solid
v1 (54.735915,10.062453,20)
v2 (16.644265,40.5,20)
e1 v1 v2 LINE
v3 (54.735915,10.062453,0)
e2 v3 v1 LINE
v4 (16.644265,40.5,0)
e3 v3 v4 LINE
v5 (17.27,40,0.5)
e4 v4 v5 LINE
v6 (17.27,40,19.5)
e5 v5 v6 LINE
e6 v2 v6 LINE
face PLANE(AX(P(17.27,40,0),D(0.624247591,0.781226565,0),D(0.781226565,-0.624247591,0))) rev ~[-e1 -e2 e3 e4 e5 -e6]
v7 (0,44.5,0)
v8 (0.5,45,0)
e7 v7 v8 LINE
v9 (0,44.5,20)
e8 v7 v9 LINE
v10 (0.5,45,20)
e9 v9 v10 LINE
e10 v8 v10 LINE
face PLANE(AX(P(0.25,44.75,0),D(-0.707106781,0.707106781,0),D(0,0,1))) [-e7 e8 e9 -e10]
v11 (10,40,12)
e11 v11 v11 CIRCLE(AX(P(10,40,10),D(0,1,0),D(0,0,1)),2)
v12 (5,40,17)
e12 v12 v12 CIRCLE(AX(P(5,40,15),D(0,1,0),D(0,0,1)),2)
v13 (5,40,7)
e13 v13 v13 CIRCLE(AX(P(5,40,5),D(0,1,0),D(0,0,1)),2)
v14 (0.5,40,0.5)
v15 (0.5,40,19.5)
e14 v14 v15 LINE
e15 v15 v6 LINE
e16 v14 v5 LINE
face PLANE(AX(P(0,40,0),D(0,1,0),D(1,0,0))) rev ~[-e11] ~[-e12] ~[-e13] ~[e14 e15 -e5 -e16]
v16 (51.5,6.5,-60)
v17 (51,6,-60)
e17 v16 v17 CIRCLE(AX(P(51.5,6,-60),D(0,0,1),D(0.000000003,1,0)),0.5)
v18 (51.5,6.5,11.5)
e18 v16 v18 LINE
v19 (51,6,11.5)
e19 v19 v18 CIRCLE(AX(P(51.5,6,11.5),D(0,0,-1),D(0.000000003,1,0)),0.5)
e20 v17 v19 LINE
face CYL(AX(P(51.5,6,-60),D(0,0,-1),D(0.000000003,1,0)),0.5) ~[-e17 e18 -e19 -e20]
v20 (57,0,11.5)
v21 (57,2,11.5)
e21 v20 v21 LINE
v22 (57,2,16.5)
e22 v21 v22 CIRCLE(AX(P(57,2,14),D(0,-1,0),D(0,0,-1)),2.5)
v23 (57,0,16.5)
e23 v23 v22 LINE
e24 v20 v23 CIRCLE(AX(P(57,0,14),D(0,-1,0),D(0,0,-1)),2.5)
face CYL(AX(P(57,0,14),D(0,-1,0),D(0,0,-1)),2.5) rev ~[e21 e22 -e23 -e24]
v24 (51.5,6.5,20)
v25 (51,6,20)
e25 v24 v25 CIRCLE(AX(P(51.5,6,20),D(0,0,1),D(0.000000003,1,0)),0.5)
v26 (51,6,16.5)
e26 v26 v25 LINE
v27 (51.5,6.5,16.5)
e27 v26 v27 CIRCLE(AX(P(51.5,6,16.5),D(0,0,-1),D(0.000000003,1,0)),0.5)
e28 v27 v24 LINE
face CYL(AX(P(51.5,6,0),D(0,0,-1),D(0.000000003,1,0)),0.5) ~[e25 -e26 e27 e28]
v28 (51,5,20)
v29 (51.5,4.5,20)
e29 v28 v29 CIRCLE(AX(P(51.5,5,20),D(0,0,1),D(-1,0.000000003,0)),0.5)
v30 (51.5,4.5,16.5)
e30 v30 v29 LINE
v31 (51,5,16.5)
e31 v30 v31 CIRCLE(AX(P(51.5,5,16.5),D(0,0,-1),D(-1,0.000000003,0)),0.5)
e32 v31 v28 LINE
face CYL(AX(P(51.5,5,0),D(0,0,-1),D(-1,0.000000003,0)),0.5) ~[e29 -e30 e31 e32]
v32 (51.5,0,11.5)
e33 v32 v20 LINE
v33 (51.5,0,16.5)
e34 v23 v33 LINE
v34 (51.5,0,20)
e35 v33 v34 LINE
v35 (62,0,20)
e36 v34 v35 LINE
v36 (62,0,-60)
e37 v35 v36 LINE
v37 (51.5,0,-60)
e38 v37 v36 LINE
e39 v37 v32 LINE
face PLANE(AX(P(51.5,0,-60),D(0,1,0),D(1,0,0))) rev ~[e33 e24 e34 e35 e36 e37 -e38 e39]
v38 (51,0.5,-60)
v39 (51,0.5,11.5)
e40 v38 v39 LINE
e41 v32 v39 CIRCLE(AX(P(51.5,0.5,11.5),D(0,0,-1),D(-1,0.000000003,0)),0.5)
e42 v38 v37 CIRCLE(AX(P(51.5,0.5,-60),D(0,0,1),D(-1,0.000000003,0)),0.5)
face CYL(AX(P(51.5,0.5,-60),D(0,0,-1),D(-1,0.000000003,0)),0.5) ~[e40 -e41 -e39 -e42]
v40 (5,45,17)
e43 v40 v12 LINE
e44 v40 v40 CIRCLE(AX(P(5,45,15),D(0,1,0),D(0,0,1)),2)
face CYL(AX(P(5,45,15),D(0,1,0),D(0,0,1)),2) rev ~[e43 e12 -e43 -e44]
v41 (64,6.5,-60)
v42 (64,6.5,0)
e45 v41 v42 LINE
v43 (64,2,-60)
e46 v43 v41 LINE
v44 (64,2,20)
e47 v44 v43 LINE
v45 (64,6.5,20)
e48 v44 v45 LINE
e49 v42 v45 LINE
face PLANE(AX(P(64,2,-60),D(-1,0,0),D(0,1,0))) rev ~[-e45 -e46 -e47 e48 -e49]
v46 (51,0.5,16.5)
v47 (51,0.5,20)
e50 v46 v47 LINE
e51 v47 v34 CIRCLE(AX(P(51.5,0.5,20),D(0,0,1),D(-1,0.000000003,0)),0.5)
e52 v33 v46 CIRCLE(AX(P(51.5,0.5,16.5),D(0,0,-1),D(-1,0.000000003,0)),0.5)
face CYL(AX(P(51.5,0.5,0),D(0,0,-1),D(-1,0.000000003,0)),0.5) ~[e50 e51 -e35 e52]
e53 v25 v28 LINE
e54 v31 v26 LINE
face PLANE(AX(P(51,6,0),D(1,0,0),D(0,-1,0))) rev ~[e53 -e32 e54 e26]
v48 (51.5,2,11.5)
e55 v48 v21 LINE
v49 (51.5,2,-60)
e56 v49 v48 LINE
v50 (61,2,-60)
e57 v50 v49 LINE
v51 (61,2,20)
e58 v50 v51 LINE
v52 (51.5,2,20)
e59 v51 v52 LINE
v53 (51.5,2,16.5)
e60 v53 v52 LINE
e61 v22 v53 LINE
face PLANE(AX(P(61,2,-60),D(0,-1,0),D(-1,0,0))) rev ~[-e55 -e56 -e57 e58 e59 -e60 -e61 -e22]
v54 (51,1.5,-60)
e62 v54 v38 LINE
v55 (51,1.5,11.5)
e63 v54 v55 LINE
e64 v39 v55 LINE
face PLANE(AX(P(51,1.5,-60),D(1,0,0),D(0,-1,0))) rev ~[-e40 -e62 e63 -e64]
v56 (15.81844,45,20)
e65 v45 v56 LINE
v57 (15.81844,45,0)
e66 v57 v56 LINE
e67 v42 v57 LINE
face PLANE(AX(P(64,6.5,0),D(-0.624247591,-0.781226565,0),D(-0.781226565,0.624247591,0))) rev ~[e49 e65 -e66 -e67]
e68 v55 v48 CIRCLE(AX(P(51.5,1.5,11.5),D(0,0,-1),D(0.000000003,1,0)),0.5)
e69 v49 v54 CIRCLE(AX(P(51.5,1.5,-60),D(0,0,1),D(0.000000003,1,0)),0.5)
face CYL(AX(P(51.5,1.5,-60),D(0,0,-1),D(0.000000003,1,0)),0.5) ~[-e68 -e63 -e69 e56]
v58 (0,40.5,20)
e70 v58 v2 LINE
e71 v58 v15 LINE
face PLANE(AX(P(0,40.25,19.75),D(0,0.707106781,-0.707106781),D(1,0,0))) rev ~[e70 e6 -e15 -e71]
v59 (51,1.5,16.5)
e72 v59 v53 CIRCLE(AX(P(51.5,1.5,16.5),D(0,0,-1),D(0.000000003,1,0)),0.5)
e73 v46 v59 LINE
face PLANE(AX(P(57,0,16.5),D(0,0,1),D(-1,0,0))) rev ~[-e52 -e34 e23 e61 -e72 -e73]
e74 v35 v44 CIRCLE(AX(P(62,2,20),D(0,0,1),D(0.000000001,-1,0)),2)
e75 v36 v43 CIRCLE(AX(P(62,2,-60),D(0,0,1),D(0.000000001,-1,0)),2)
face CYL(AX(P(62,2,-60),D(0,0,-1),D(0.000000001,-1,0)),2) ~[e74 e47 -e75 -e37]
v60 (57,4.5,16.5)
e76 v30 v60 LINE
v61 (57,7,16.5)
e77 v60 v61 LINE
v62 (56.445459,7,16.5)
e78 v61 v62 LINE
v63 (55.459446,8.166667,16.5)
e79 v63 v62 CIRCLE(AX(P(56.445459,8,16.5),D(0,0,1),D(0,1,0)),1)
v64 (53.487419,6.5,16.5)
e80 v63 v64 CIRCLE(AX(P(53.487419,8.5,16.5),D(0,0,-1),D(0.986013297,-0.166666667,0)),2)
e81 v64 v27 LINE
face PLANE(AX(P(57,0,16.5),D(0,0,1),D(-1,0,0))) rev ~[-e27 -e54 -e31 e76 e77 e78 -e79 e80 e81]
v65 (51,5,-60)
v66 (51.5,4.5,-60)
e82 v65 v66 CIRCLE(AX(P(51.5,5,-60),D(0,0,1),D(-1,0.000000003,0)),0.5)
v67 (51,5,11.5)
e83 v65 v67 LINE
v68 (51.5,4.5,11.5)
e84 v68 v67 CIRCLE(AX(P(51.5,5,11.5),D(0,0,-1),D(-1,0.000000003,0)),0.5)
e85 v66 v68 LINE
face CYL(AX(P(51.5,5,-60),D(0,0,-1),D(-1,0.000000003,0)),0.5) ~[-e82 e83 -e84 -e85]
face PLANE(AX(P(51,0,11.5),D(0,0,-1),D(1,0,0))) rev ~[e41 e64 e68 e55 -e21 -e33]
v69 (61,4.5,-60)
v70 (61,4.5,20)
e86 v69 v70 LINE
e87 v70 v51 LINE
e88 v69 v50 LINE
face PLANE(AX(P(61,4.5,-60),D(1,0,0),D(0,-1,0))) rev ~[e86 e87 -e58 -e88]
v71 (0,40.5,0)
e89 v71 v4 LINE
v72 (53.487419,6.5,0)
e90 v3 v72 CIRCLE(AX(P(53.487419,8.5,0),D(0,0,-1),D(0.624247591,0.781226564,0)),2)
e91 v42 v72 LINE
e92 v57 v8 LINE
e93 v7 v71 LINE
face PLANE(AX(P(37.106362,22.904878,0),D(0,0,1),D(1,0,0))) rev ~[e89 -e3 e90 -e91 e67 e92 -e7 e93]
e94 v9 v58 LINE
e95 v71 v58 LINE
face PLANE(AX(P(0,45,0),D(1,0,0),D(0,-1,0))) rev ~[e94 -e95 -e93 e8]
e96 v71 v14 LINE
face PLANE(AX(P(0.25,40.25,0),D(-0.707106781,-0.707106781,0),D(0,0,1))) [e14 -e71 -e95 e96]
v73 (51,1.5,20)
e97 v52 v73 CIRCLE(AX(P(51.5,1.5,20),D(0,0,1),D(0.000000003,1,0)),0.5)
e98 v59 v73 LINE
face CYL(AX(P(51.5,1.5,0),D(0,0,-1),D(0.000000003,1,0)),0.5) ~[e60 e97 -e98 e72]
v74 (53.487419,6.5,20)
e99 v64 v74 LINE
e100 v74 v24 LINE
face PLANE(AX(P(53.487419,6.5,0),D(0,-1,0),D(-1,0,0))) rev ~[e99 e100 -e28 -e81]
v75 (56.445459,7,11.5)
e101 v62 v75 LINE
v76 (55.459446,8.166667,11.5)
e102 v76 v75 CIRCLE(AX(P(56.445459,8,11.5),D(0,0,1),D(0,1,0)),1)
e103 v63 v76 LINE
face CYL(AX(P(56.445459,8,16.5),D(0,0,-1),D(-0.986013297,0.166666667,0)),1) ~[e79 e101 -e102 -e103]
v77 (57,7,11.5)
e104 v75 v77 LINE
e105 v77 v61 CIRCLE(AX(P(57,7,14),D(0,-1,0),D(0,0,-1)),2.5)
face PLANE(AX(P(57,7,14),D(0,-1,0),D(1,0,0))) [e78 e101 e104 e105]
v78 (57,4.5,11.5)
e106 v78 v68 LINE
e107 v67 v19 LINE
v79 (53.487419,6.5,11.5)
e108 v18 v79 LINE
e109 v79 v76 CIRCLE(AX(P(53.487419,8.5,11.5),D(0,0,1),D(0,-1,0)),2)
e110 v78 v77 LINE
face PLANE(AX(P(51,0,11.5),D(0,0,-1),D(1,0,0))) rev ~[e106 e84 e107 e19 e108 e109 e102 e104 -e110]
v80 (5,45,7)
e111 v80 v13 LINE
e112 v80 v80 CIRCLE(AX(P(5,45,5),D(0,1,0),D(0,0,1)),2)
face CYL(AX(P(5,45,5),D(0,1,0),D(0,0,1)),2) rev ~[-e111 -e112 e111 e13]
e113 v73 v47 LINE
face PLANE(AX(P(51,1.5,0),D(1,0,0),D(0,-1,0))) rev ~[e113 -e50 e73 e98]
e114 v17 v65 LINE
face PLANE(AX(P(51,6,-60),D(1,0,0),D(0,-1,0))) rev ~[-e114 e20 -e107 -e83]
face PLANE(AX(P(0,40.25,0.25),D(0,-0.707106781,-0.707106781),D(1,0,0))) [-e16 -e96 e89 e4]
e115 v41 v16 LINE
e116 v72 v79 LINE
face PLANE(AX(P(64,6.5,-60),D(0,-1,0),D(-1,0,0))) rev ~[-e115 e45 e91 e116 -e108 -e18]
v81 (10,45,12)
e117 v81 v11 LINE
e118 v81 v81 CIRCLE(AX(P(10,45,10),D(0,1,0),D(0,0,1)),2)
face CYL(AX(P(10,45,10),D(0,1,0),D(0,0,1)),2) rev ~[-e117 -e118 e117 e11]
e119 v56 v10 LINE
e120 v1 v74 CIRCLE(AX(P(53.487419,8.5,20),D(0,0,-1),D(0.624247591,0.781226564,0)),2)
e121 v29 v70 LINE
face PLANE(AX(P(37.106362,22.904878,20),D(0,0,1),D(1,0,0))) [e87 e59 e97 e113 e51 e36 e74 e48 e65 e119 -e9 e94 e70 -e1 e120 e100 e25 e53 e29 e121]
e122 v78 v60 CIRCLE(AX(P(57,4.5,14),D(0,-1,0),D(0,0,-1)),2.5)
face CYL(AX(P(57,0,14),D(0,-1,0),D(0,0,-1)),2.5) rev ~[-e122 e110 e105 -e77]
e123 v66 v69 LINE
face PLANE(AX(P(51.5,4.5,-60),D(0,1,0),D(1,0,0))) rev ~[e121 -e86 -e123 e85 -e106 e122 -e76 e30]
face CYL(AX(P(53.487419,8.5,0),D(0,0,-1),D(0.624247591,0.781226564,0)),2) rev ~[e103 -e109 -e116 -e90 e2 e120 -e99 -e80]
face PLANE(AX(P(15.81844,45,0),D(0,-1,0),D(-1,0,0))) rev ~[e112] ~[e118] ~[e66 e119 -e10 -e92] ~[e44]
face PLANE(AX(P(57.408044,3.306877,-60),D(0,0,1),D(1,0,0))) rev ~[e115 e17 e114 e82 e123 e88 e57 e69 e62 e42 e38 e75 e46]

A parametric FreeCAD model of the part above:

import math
import FreeCAD as App
import Part
import Sketcher
from FreeCAD import Vector


def edges_at(feature, points):
    """Names of the edges that pass closest to the given points."""
    edges = feature.Shape.Edges
    near = lambda p: min(range(len(edges)), key=lambda i: edges[i].distToShape(Part.Vertex(*p))[0])
    return sorted({f"Edge{near(p) + 1}" for p in points})

doc = App.newDocument("Part")
body = doc.addObject("PartDesign::Body", "Body")

sketch1 = body.newObject("Sketcher::SketchObject", "Sketch")
sketch1.AttachmentSupport = (doc.getObject("XY_Plane"), [""])
sketch1.MapMode = "FlatFace"
sketch1.addGeometry([
    Part.LineSegment(Vector(51.5, 0, 0), Vector(62, 0, 0)),
    Part.ArcOfCircle(Part.Circle(Vector(62, 2, 0), Vector(0, 0, 1), 2), math.radians(-90), math.radians(0)),
    Part.LineSegment(Vector(64, 2, 0), Vector(64, 6.5, 0)),
    Part.LineSegment(Vector(64, 6.5, 0), Vector(15.82, 45, 0)),
    Part.LineSegment(Vector(15.82, 45, 0), Vector(0, 45, 0)),
    Part.LineSegment(Vector(0, 45, 0), Vector(0, 40, 0)),
    Part.LineSegment(Vector(0, 40, 0), Vector(17.27, 40, 0)),
    Part.LineSegment(Vector(17.27, 40, 0), Vector(54.74, 10.06, 0)),
    Part.ArcOfCircle(Part.Circle(Vector(53.49, 8.5, 0), Vector(0, 0, 1), 2), math.radians(-90), math.radians(51)),
    Part.LineSegment(Vector(53.49, 6.5, 0), Vector(51.5, 6.5, 0)),
    Part.ArcOfCircle(Part.Circle(Vector(51.5, 6, 0), Vector(0, 0, 1), 0.5), math.radians(90), math.radians(180)),
    Part.LineSegment(Vector(51, 6, 0), Vector(51, 5, 0)),
    Part.ArcOfCircle(Part.Circle(Vector(51.5, 5, 0), Vector(0, 0, 1), 0.5), math.radians(180), math.radians(270)),
    Part.LineSegment(Vector(51.5, 4.5, 0), Vector(61, 4.5, 0)),
    Part.LineSegment(Vector(61, 4.5, 0), Vector(61, 2, 0)),
    Part.LineSegment(Vector(61, 2, 0), Vector(51.5, 2, 0)),
    Part.ArcOfCircle(Part.Circle(Vector(51.5, 1.5, 0), Vector(0, 0, 1), 0.5), math.radians(90), math.radians(180)),
    Part.LineSegment(Vector(51, 1.5, 0), Vector(51, 0.5, 0)),
    Part.ArcOfCircle(Part.Circle(Vector(51.5, 0.5, 0), Vector(0, 0, 1), 0.5), math.radians(180), math.radians(270)),
], False)
sketch1.addConstraint([
    Sketcher.Constraint("Tangent", 0, 2, 1, 1),
    Sketcher.Constraint("Tangent", 1, 2, 2, 1),
    Sketcher.Constraint("Coincident", 2, 2, 3, 1),
    Sketcher.Constraint("Coincident", 3, 2, 4, 1),
    Sketcher.Constraint("Coincident", 4, 2, 5, 1),
    Sketcher.Constraint("Coincident", 5, 2, 6, 1),
    Sketcher.Constraint("Coincident", 6, 2, 7, 1),
    Sketcher.Constraint("Tangent", 7, 2, 8, 2),
    Sketcher.Constraint("Tangent", 8, 1, 9, 1),
    Sketcher.Constraint("Tangent", 9, 2, 10, 1),
    Sketcher.Constraint("Tangent", 10, 2, 11, 1),
    Sketcher.Constraint("Tangent", 11, 2, 12, 1),
    Sketcher.Constraint("Tangent", 12, 2, 13, 1),
    Sketcher.Constraint("Coincident", 13, 2, 14, 1),
    Sketcher.Constraint("Coincident", 14, 2, 15, 1),
    Sketcher.Constraint("Tangent", 15, 2, 16, 1),
    Sketcher.Constraint("Tangent", 16, 2, 17, 1),
    Sketcher.Constraint("Tangent", 17, 2, 18, 1),
    Sketcher.Constraint("Tangent", 18, 2, 0, 1),
    Sketcher.Constraint("Horizontal", 0),
    Sketcher.Constraint("Vertical", 2),
    Sketcher.Constraint("Horizontal", 4),
    Sketcher.Constraint("Vertical", 5),
    Sketcher.Constraint("Horizontal", 6),
    Sketcher.Constraint("Horizontal", 9),
    Sketcher.Constraint("Vertical", 11),
    Sketcher.Constraint("Horizontal", 13),
    Sketcher.Constraint("Vertical", 14),
    Sketcher.Constraint("Horizontal", 15),
    Sketcher.Constraint("Vertical", 17),
    Sketcher.Constraint("Equal", 1, 8),
    Sketcher.Constraint("Equal", 10, 12),
    Sketcher.Constraint("Equal", 12, 16),
    Sketcher.Constraint("Equal", 16, 18),
    Sketcher.Constraint("PointOnObject", 0, 2, -1),
    Sketcher.Constraint("PointOnObject", 4, 2, -2),
    Sketcher.Constraint("Parallel", 3, 7),
    Sketcher.Constraint("Horizontal", 2, 2, 8, 1),
    Sketcher.Constraint("Horizontal", 1, 2, 14, 2),
    Sketcher.Constraint("Vertical", 12, 3, 16, 3),
    Sketcher.Constraint("Equal", 11, 17),
    Sketcher.Constraint("Radius", 1, 2.0),
    Sketcher.Constraint("Radius", 10, 0.5),
    Sketcher.Constraint("DistanceY", 5, 2, 5, 1, 5.0),
    Sketcher.Constraint("DistanceX", 0, 1, 0, 2, 10.5),
    Sketcher.Constraint("DistanceX", 13, 1, 13, 2, 9.5),
    Sketcher.Constraint("DistanceY", 2, 1, 2, 2, 4.5),
    Sketcher.Constraint("DistanceX", -1, 1, 1, 3, 62.0),
    Sketcher.Constraint("DistanceY", -1, 1, 3, 2, 45.0),
    Sketcher.Constraint("DistanceX", 6, 1, 6, 2, 17.27),
    Sketcher.Constraint("DistanceX", 4, 2, 4, 1, 15.81844),
])
pad1 = body.newObject("PartDesign::Pad", "Pad")
pad1.Profile = sketch1
pad1.Length = 20

sketch2 = body.newObject("Sketcher::SketchObject", "Sketch001")
sketch2.AttachmentSupport = (doc.getObject("XZ_Plane"), [""])
sketch2.MapMode = "FlatFace"
sketch2.addGeometry([
    Part.LineSegment(Vector(57, 16.5, 0), Vector(51, 16.5, 0)),
    Part.LineSegment(Vector(51, 16.5, 0), Vector(51, 11.5, 0)),
    Part.LineSegment(Vector(51, 11.5, 0), Vector(57, 11.5, 0)),
    Part.ArcOfCircle(Part.Circle(Vector(57, 14, 0), Vector(0, 0, 1), 2.5), math.radians(-90), math.radians(90)),
], False)
sketch2.addConstraint([
    Sketcher.Constraint("Coincident", 0, 2, 1, 1),
    Sketcher.Constraint("Coincident", 1, 2, 2, 1),
    Sketcher.Constraint("Tangent", 2, 2, 3, 1),
    Sketcher.Constraint("Tangent", 3, 2, 0, 1),
    Sketcher.Constraint("Horizontal", 0),
    Sketcher.Constraint("Vertical", 1),
    Sketcher.Constraint("Horizontal", 2),
    Sketcher.Constraint("Radius", 3, 2.5),
    Sketcher.Constraint("DistanceX", 0, 2, 0, 1, 6.0),
    Sketcher.Constraint("DistanceX", -1, 1, 3, 3, 57.0),
    Sketcher.Constraint("DistanceY", -1, 1, 3, 3, 14.0),
])
pocket1 = body.newObject("PartDesign::Pocket", "Pocket")
pocket1.Profile = sketch2
pocket1.Length = 7
doc.recompute()

fillet = body.newObject("PartDesign::Fillet", "Fillet")
fillet.Base = (pocket1, edges_at(pocket1, [(54.81, 7, 14)]))
fillet.Radius = 1

sketch3 = body.newObject("Sketcher::SketchObject", "Sketch002")
sketch3.AttachmentSupport = (doc.getObject("XY_Plane"), [""])
sketch3.MapMode = "FlatFace"
sketch3.AttachmentOffset = App.Placement(Vector(0, 0, -60), App.Rotation())
sketch3.addGeometry([
    Part.LineSegment(Vector(51.5, 6.5, 0), Vector(64, 6.5, 0)),
    Part.LineSegment(Vector(64, 6.5, 0), Vector(64, 2, 0)),
    Part.ArcOfCircle(Part.Circle(Vector(62, 2, 0), Vector(0, 0, 1), 2), math.radians(-90), math.radians(0)),
    Part.LineSegment(Vector(62, 0, 0), Vector(51.5, 0, 0)),
    Part.ArcOfCircle(Part.Circle(Vector(51.5, 0.5, 0), Vector(0, 0, 1), 0.5), math.radians(180), math.radians(270)),
    Part.LineSegment(Vector(51, 0.5, 0), Vector(51, 1.5, 0)),
    Part.ArcOfCircle(Part.Circle(Vector(51.5, 1.5, 0), Vector(0, 0, 1), 0.5), math.radians(90), math.radians(180)),
    Part.LineSegment(Vector(51.5, 2, 0), Vector(61, 2, 0)),
    Part.LineSegment(Vector(61, 2, 0), Vector(61, 4.5, 0)),
    Part.LineSegment(Vector(61, 4.5, 0), Vector(51.5, 4.5, 0)),
    Part.ArcOfCircle(Part.Circle(Vector(51.5, 5, 0), Vector(0, 0, 1), 0.5), math.radians(180), math.radians(270)),
    Part.LineSegment(Vector(51, 5, 0), Vector(51, 6, 0)),
    Part.ArcOfCircle(Part.Circle(Vector(51.5, 6, 0), Vector(0, 0, 1), 0.5), math.radians(90), math.radians(180)),
], False)
sketch3.addConstraint([
    Sketcher.Constraint("Coincident", 0, 2, 1, 1),
    Sketcher.Constraint("Tangent", 1, 2, 2, 2),
    Sketcher.Constraint("Tangent", 2, 1, 3, 1),
    Sketcher.Constraint("Tangent", 3, 2, 4, 2),
    Sketcher.Constraint("Tangent", 4, 1, 5, 1),
    Sketcher.Constraint("Tangent", 5, 2, 6, 2),
    Sketcher.Constraint("Tangent", 6, 1, 7, 1),
    Sketcher.Constraint("Coincident", 7, 2, 8, 1),
    Sketcher.Constraint("Coincident", 8, 2, 9, 1),
    Sketcher.Constraint("Tangent", 9, 2, 10, 2),
    Sketcher.Constraint("Tangent", 10, 1, 11, 1),
    Sketcher.Constraint("Tangent", 11, 2, 12, 2),
    Sketcher.Constraint("Tangent", 12, 1, 0, 1),
    Sketcher.Constraint("Horizontal", 0),
    Sketcher.Constraint("Vertical", 1),
    Sketcher.Constraint("Horizontal", 3),
    Sketcher.Constraint("Vertical", 5),
    Sketcher.Constraint("Horizontal", 7),
    Sketcher.Constraint("Vertical", 8),
    Sketcher.Constraint("Horizontal", 9),
    Sketcher.Constraint("Vertical", 11),
    Sketcher.Constraint("Equal", 4, 6),
    Sketcher.Constraint("Equal", 6, 10),
    Sketcher.Constraint("Equal", 10, 12),
    Sketcher.Constraint("PointOnObject", 2, 1, -1),
    Sketcher.Constraint("Horizontal", 1, 2, 6, 1),
    Sketcher.Constraint("Vertical", 6, 3, 10, 3),
    Sketcher.Constraint("Equal", 5, 11),
    Sketcher.Constraint("Radius", 2, 2.0),
    Sketcher.Constraint("Radius", 4, 0.5),
    Sketcher.Constraint("DistanceX", 0, 1, 0, 2, 12.5),
    Sketcher.Constraint("DistanceX", 7, 1, 7, 2, 9.5),
    Sketcher.Constraint("DistanceY", 1, 2, 1, 1, 4.5),
    Sketcher.Constraint("DistanceX", -1, 1, 2, 3, 62.0),
])
pad2 = body.newObject("PartDesign::Pad", "Pad001")
pad2.Profile = sketch3
pad2.Length = 60

sketch4 = body.newObject("Sketcher::SketchObject", "Sketch003")
sketch4.AttachmentSupport = (doc.getObject("XZ_Plane"), [""])
sketch4.MapMode = "FlatFace"
sketch4.AttachmentOffset = App.Placement(Vector(0, 0, -45), App.Rotation())
sketch4.addGeometry([
    Part.Circle(Vector(5, 5, 0), Vector(0, 0, 1), 2),
    Part.Circle(Vector(5, 15, 0), Vector(0, 0, 1), 2),
    Part.Circle(Vector(10, 10, 0), Vector(0, 0, 1), 2),
], False)
sketch4.addConstraint([
    Sketcher.Constraint("Equal", 0, 1),
    Sketcher.Constraint("Equal", 1, 2),
    Sketcher.Constraint("Vertical", 0, 3, 1, 3),
    Sketcher.Constraint("Diameter", 0, 4.0),
    Sketcher.Constraint("DistanceX", -1, 1, 0, 3, 5.0),
    Sketcher.Constraint("DistanceY", -1, 1, 0, 3, 5.0),
    Sketcher.Constraint("DistanceY", -1, 1, 1, 3, 15.0),
    Sketcher.Constraint("DistanceX", -1, 1, 2, 3, 10.0),
    Sketcher.Constraint("DistanceY", -1, 1, 2, 3, 10.0),
])
pocket2 = body.newObject("PartDesign::Pocket", "Pocket001")
pocket2.Profile = sketch4
pocket2.Length = 5
pocket2.Reversed = True
doc.recompute()

chamfer = body.newObject("PartDesign::Chamfer", "Chamfer")
chamfer.Base = (pocket2, edges_at(pocket2, [
    (8.635, 40, 20),
    (8.635, 40, 0),
    (0, 40, 10),
    (0, 45, 10),
]))
chamfer.Size = 0.5

doc.recompute()
